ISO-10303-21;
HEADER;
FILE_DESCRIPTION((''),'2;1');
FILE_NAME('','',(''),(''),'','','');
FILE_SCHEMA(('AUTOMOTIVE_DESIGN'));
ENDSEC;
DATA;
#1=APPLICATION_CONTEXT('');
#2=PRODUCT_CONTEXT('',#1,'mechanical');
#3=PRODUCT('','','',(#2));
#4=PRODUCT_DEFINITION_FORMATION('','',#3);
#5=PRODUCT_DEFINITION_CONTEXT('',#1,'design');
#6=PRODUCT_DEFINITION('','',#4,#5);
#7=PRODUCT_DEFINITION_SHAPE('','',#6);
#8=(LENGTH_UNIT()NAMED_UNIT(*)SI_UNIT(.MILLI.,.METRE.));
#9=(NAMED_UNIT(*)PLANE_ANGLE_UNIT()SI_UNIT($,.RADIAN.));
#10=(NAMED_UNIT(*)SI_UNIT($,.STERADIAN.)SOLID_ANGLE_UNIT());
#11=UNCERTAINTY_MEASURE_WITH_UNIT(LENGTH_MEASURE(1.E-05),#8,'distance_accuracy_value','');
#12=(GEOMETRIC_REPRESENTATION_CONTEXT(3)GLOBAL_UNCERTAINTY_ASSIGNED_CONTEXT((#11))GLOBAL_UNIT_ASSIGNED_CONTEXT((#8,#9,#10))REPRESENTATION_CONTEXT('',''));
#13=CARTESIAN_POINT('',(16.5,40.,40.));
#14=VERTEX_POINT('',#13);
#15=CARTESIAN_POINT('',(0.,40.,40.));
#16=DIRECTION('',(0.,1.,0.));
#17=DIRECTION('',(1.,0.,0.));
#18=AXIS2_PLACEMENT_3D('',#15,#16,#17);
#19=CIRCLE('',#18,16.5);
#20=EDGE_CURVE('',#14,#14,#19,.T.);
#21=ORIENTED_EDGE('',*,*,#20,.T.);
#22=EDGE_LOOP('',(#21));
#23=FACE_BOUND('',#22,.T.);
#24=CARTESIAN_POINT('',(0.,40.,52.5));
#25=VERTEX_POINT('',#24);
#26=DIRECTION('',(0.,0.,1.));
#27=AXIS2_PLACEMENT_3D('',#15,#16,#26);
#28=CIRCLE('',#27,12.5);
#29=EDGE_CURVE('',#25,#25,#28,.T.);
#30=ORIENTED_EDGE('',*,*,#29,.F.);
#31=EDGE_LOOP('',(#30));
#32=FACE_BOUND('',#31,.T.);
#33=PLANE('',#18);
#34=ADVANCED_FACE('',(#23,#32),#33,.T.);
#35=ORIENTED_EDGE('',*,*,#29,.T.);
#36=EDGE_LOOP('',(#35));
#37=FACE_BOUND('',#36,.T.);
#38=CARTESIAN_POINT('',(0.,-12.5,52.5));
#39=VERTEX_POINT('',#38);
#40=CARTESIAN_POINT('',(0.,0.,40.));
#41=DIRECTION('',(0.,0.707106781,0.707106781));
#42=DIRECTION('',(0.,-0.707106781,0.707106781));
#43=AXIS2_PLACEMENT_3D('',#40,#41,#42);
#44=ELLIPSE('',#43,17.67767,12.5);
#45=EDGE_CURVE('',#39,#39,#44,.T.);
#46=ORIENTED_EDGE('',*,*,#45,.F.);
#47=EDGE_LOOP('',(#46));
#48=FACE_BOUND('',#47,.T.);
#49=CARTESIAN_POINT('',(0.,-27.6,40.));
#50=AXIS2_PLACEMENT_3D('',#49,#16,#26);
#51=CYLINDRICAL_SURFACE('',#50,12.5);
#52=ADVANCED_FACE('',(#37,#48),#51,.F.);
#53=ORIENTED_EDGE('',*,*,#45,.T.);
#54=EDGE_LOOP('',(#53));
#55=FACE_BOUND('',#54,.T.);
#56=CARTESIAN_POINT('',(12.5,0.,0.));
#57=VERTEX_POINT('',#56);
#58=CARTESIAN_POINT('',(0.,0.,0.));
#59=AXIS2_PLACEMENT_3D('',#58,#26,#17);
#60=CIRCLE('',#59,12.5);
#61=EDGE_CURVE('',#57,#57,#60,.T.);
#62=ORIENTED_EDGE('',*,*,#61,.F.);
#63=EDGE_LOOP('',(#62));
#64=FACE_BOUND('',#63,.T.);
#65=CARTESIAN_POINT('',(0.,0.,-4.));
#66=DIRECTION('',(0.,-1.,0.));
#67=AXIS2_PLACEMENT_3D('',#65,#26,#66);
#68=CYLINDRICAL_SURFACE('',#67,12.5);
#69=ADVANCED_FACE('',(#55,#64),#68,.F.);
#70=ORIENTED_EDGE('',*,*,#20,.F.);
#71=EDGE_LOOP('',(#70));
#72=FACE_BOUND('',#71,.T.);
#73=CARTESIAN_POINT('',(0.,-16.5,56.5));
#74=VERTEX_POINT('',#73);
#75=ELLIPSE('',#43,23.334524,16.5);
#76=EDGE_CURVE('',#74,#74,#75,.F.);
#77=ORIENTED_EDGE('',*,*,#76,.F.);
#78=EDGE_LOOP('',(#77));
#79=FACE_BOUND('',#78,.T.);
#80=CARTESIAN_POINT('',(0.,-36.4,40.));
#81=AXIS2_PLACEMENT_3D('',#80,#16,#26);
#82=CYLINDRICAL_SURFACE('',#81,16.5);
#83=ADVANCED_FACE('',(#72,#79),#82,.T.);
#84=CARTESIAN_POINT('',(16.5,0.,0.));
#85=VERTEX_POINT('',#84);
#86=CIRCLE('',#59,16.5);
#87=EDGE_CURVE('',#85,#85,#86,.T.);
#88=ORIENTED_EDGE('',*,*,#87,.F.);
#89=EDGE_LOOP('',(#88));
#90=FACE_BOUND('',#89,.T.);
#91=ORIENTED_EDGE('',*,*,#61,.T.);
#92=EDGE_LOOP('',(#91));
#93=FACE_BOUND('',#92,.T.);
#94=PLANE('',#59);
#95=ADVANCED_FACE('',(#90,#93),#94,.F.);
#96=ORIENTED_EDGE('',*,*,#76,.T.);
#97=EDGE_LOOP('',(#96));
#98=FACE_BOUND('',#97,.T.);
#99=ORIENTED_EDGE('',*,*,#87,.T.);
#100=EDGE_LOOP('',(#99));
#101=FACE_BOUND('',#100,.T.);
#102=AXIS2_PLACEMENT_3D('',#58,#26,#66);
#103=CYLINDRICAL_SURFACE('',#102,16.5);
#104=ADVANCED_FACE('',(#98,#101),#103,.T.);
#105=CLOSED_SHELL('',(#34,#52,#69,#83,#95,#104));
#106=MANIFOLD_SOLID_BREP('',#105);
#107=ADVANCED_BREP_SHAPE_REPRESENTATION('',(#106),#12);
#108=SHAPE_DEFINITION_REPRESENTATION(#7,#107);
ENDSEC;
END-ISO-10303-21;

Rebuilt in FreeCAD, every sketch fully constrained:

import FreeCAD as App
import Part
import Sketcher

doc = App.newDocument("Part")
body = doc.addObject("PartDesign::Body", "Body")

sketch1 = body.newObject("Sketcher::SketchObject", "Sketch")
sketch1.AttachmentSupport = (doc.getObject("XY_Plane"), [""])
sketch1.MapMode = "FlatFace"
sketch1.addGeometry(Part.Circle(App.Vector(0, 0, 0), App.Vector(0, 0, 1), 16), False)
sketch1.addConstraint([
    Sketcher.Constraint("Coincident", 0, 3, -1, 1),
    Sketcher.Constraint("Diameter", 0, 33.0),
])

sketch2 = body.newObject("Sketcher::SketchObject", "Sketch001")
sketch2.AttachmentSupport = (doc.getObject("YZ_Plane"), [""])
sketch2.MapMode = "FlatFace"
sketch2.addGeometry([
    Part.LineSegment(App.Vector(0, 0, 0), App.Vector(0, 40, 0)),
    Part.LineSegment(App.Vector(0, 40, 0), App.Vector(40, 40, 0)),
], False)
sketch2.addConstraint([
    Sketcher.Constraint("Coincident", 0, 2, 1, 1),
    Sketcher.Constraint("Vertical", 0),
    Sketcher.Constraint("Horizontal", 1),
    Sketcher.Constraint("Coincident", 0, 1, -1, 1),
    Sketcher.Constraint("Equal", 1, 0),
    Sketcher.Constraint("DistanceX", 1, 1, 1, 2, 40.0),
])
doc.recompute()

additivepipe = body.newObject("PartDesign::AdditivePipe", "AdditivePipe")
additivepipe.Profile = sketch1
additivepipe.Spine = (sketch2, ["Edge1", "Edge2"])
additivepipe.Transition = "Right corner"

sketch3 = body.newObject("Sketcher::SketchObject", "Sketch002")
sketch3.AttachmentSupport = (doc.getObject("XY_Plane"), [""])
sketch3.MapMode = "FlatFace"
sketch3.addGeometry(Part.Circle(App.Vector(0, 0, 0), App.Vector(0, 0, 1), 12), False)
sketch3.addConstraint([
    Sketcher.Constraint("Coincident", 0, 3, -1, 1),
    Sketcher.Constraint("Diameter", 0, 25.0),
])

sketch4 = body.newObject("Sketcher::SketchObject", "Sketch003")
sketch4.AttachmentSupport = (doc.getObject("YZ_Plane"), [""])
sketch4.MapMode = "FlatFace"
sketch4.addGeometry([
    Part.LineSegment(App.Vector(0, 0, 0), App.Vector(0, 40, 0)),
    Part.LineSegment(App.Vector(0, 40, 0), App.Vector(40, 40, 0)),
], False)
sketch4.addConstraint([
    Sketcher.Constraint("Coincident", 0, 2, 1, 1),
    Sketcher.Constraint("Vertical", 0),
    Sketcher.Constraint("Horizontal", 1),
    Sketcher.Constraint("Coincident", 0, 1, -1, 1),
    Sketcher.Constraint("Equal", 1, 0),
    Sketcher.Constraint("DistanceX", 1, 1, 1, 2, 40.0),
])
doc.recompute()

subtractivepipe = body.newObject("PartDesign::SubtractivePipe", "SubtractivePipe")
subtractivepipe.Profile = sketch3
subtractivepipe.Spine = (sketch4, ["Edge1", "Edge2"])
subtractivepipe.Transition = "Right corner"

doc.recompute()
